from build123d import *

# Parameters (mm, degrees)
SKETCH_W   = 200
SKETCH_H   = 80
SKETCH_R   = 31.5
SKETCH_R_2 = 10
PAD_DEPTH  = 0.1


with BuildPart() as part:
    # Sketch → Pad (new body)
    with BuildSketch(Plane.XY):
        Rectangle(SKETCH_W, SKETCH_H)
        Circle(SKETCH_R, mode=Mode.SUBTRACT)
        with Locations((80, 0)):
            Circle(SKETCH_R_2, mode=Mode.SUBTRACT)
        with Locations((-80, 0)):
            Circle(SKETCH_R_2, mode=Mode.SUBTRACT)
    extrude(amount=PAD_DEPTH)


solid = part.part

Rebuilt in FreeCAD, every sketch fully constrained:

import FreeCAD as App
import Part
import Sketcher

V = App.Vector

doc = App.newDocument("Part")
body = doc.addObject("PartDesign::Body", "Body")

sketch1 = body.newObject("Sketcher::SketchObject", "Sketch")
sketch1.AttachmentSupport = (doc.getObject("XY_Plane"), [""])
sketch1.MapMode = "FlatFace"
sketch1.addGeometry(Part.LineSegment(V(-100, 40, 0), V(-100, -40, 0)), False)
sketch1.addGeometry(Part.LineSegment(V(-100, -40, 0), V(100, -40, 0)), False)
sketch1.addGeometry(Part.LineSegment(V(100, -40, 0), V(100, 40, 0)), False)
sketch1.addGeometry(Part.LineSegment(V(100, 40, 0), V(-100, 40, 0)), False)
sketch1.addGeometry(Part.Circle(V(-80, 0, 0), V(0, 0, 1), 10), False)
sketch1.addGeometry(Part.Circle(V(0, 0, 0), V(0, 0, 1), 32), False)
sketch1.addGeometry(Part.Circle(V(80, 0, 0), V(0, 0, 1), 10), False)
sketch1.addConstraint(Sketcher.Constraint("Coincident", 0, 2, 1, 1))
sketch1.addConstraint(Sketcher.Constraint("Coincident", 1, 2, 2, 1))
sketch1.addConstraint(Sketcher.Constraint("Coincident", 2, 2, 3, 1))
sketch1.addConstraint(Sketcher.Constraint("Coincident", 3, 2, 0, 1))
sketch1.addConstraint(Sketcher.Constraint("Vertical", 0))
sketch1.addConstraint(Sketcher.Constraint("Horizontal", 1))
sketch1.addConstraint(Sketcher.Constraint("Vertical", 2))
sketch1.addConstraint(Sketcher.Constraint("Horizontal", 3))
sketch1.addConstraint(Sketcher.Constraint("Coincident", 5, 3, -1, 1))
sketch1.addConstraint(Sketcher.Constraint("Equal", 4, 6))
sketch1.addConstraint(Sketcher.Constraint("Symmetric", 4, 3, 6, 3, -1, 1))
sketch1.addConstraint(Sketcher.Constraint("Symmetric", 0, 2, 2, 2, -1, 1))
sketch1.addConstraint(Sketcher.Constraint("PointOnObject", 4, 3, -1))
sketch1.addConstraint(Sketcher.Constraint("Diameter", 4, 20.0))
sketch1.addConstraint(Sketcher.Constraint("Diameter", 5, 63.0))
sketch1.addConstraint(Sketcher.Constraint("DistanceX", 1, 1, 1, 2, 200.0))
sketch1.addConstraint(Sketcher.Constraint("DistanceY", 0, 2, 0, 1, 80.0))
sketch1.addConstraint(Sketcher.Constraint("DistanceX", 4, 3, -1, 1, 80.0))
pad1 = body.newObject("PartDesign::Pad", "Pad")
pad1.Profile = sketch1
pad1.Length = 0.1

doc.recompute()
